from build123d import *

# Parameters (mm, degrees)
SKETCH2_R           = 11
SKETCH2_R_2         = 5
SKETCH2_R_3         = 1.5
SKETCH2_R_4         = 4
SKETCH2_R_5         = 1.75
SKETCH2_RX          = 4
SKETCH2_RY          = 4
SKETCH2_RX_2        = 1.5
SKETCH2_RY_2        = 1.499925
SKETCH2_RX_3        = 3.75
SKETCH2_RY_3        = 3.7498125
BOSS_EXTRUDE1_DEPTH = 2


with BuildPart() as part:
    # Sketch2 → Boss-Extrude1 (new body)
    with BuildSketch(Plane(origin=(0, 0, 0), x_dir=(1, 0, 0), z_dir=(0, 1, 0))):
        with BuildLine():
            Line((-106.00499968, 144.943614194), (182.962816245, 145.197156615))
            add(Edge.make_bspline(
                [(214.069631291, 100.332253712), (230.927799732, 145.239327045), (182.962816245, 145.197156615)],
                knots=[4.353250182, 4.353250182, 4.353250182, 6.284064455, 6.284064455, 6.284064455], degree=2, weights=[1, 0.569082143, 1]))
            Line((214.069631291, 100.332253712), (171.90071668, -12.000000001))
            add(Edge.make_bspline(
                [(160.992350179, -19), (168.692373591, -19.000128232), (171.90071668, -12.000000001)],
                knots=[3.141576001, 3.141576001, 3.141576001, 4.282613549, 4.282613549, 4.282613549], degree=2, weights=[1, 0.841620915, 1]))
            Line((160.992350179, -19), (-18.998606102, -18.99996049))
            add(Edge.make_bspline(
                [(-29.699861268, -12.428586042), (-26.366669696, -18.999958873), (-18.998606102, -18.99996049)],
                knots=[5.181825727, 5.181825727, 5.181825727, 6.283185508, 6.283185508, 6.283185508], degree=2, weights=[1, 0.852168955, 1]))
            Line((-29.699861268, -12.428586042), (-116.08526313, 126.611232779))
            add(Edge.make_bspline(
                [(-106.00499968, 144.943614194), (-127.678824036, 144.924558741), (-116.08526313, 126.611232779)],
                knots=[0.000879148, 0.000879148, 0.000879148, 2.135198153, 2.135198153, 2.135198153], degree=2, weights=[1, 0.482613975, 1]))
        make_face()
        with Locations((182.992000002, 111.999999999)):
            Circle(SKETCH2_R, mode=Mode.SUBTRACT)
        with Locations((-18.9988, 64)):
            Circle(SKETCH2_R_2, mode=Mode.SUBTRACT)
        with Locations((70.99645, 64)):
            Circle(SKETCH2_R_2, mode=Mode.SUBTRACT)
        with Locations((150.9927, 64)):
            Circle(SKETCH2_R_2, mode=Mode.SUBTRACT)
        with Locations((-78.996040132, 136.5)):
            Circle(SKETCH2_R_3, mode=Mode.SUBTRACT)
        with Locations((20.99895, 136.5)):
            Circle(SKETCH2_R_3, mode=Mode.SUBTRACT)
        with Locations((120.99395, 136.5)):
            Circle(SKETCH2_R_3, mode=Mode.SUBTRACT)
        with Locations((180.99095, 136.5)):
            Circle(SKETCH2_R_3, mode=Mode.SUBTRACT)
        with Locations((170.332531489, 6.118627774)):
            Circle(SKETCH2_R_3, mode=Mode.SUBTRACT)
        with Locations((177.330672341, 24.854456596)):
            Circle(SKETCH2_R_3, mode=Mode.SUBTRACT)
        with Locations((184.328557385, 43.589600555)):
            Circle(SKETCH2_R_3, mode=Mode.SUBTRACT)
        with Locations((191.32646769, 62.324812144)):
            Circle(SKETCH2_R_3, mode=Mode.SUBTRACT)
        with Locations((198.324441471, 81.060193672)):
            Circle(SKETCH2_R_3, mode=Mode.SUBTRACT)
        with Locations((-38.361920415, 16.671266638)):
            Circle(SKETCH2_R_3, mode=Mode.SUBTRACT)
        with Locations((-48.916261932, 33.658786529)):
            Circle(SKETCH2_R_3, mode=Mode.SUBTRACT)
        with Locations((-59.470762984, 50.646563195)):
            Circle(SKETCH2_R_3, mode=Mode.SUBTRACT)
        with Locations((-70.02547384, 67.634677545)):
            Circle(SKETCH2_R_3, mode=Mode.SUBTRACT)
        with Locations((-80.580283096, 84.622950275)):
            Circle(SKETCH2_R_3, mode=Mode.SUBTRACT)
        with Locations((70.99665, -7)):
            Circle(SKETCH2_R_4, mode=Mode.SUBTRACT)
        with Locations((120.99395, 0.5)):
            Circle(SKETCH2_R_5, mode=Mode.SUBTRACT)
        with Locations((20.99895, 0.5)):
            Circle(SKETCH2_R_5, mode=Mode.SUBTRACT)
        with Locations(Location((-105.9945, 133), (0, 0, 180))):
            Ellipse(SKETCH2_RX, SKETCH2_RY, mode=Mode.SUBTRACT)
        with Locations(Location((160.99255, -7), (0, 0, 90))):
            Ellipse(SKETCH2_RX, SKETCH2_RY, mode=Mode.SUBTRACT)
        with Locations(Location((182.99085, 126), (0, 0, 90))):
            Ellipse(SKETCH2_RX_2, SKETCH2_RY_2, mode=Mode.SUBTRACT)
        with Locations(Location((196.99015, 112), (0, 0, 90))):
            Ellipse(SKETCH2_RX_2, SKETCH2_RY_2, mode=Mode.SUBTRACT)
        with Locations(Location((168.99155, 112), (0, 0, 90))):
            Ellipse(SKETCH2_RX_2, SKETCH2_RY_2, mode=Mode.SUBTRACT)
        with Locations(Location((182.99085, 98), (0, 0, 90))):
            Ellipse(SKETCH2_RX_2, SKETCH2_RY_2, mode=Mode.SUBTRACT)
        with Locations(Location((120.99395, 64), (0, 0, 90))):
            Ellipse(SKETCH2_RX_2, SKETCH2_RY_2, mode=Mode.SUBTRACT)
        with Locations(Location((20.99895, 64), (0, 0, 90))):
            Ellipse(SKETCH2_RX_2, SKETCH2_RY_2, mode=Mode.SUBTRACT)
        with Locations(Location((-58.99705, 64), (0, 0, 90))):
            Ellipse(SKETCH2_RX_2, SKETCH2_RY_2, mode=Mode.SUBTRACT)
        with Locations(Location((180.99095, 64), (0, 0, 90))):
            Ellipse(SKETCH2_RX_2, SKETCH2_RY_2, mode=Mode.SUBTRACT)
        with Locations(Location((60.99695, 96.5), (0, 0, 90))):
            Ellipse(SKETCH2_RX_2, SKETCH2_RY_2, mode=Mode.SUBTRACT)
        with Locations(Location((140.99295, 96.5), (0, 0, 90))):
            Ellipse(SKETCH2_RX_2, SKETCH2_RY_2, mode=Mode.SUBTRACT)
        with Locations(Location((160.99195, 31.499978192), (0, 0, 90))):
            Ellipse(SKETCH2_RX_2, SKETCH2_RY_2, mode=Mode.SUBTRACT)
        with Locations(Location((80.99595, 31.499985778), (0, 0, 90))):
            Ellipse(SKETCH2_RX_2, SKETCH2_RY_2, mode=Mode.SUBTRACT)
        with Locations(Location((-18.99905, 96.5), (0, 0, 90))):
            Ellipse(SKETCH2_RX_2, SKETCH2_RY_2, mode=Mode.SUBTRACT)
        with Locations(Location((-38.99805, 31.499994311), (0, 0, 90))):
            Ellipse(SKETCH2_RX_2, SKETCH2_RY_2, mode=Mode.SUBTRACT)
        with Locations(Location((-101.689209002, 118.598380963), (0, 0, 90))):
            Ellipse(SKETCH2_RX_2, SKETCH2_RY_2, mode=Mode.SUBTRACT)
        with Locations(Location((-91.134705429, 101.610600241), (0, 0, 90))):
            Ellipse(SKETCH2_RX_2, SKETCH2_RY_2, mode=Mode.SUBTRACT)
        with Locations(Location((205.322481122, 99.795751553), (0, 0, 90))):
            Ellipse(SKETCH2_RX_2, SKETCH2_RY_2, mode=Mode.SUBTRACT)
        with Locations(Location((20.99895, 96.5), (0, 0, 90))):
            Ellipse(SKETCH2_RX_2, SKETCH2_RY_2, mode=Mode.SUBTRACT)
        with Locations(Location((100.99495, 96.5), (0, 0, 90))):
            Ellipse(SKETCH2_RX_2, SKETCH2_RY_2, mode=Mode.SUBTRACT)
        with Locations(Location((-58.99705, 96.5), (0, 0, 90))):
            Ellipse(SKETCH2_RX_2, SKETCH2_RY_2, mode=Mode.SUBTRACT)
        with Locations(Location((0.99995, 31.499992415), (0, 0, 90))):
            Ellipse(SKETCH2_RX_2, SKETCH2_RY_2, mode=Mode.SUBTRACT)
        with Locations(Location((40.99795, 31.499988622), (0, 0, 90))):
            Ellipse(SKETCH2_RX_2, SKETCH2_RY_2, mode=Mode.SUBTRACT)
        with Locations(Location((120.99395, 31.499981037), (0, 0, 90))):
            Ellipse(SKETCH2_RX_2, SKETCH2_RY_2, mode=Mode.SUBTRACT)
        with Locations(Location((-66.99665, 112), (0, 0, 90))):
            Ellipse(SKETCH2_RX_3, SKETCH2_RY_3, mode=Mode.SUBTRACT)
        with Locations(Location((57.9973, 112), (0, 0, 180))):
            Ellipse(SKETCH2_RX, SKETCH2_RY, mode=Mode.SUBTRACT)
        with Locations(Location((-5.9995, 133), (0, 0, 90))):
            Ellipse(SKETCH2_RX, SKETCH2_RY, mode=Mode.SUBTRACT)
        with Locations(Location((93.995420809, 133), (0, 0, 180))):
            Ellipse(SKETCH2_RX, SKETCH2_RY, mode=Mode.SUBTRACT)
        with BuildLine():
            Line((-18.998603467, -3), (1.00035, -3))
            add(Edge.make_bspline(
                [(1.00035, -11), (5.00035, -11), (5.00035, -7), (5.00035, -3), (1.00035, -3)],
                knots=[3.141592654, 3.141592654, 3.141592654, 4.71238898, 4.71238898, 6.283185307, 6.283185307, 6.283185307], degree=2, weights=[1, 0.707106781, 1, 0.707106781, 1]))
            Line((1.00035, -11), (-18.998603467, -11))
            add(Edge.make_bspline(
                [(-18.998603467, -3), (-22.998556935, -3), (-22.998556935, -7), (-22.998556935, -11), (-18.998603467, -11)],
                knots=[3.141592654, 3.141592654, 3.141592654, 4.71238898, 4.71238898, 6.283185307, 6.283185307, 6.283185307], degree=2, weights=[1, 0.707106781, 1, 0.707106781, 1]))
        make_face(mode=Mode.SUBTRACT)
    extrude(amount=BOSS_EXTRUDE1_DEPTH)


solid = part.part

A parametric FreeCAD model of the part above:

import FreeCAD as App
import Part
import Sketcher

doc = App.newDocument("Part")
params = doc.addObject("Spreadsheet::Sheet", "Params")
for row, (alias, value) in enumerate([
    ("sketch1_diameter", "3 mm"),
    ("sketch1_diameter2", "8 mm"),
    ("sketch1_diameter3", "10 mm"),
    ("sketch1_diameter4", "22 mm"),
    ("sketch1_diameter5", "3.5 mm"),
    ("pad1_length", "2 mm"),
], start=1):
    params.set(f"A{row}", alias)
    params.set(f"B{row}", "=" + value)
    params.setAlias(f"B{row}", alias)

body = doc.addObject("PartDesign::Body", "Body")

# Sketch on XZ plane
sketch1 = body.newObject("Sketcher::SketchObject", "Sketch")
sketch1.AttachmentSupport = (doc.getObject("XZ_Plane"), [""])
sketch1.MapMode = "FlatFace"
sketch1.addGeometry([
    Part.LineSegment(App.Vector(182.962816, -145.197157, 0), App.Vector(-106.005, -144.943614, 0)),  # 0
    Part.BSplineCurve([App.Vector(-106.005, -144.943614, 0), App.Vector(-127.678824, -144.924559, 0), App.Vector(-116.085263, -126.611233, 0)], [3, 3], [0.000879148, 2.135198153], False, 2, [1, 0.482613975, 1], False),  # 1
    Part.LineSegment(App.Vector(-116.085263, -126.611233, 0), App.Vector(-29.699861, 12.428586, 0)),  # 2
    Part.BSplineCurve([App.Vector(-29.699861, 12.428586, 0), App.Vector(-26.36667, 18.999959, 0), App.Vector(-18.998606, 18.99996, 0)], [3, 3], [5.181825727, 6.283185508], False, 2, [1, 0.852168955, 1], False),  # 3
    Part.LineSegment(App.Vector(-18.998606, 18.99996, 0), App.Vector(160.99235, 19, 0)),  # 4
    Part.BSplineCurve([App.Vector(160.99235, 19, 0), App.Vector(168.692374, 19.000128, 0), App.Vector(171.900717, 12, 0)], [3, 3], [3.141576001, 4.282613549], False, 2, [1, 0.841620915, 1], False),  # 5
    Part.LineSegment(App.Vector(171.900717, 12, 0), App.Vector(214.069631, -100.332254, 0)),  # 6
    Part.BSplineCurve([App.Vector(214.069631, -100.332254, 0), App.Vector(230.9278, -145.239327, 0), App.Vector(182.962816, -145.197157, 0)], [3, 3], [4.353250182, 6.284064455], False, 2, [1, 0.569082143, 1], False),  # 7
    Part.Circle(App.Vector(170.332531, -6.118628, 0), App.Vector(0, 0, 1), 1.5),  # 8
    Part.Ellipse(App.Vector(160.99255, 3, 0), App.Vector(164.99255, 7, 0), App.Vector(160.99255, 7, 0)),  # 9
    Part.Circle(App.Vector(177.330672, -24.854457, 0), App.Vector(0, 0, 1), 1.5),  # 10
    Part.Circle(App.Vector(120.99395, -0.5, 0), App.Vector(0, 0, 1), 1.75),  # 11
    Part.Circle(App.Vector(70.99665, 7, 0), App.Vector(0, 0, 1), 4),  # 12
    Part.Circle(App.Vector(184.328557, -43.589601, 0), App.Vector(0, 0, 1), 1.5),  # 13
    Part.Ellipse(App.Vector(160.99195, -32.999978, 0), App.Vector(162.491875, -31.499978, 0), App.Vector(160.99195, -31.499978, 0)),  # 14
    Part.Circle(App.Vector(191.326468, -62.324812, 0), App.Vector(0, 0, 1), 1.5),  # 15
    Part.Ellipse(App.Vector(120.99395, -32.999981, 0), App.Vector(122.493875, -31.499981, 0), App.Vector(120.99395, -31.499981, 0)),  # 16
    Part.Ellipse(App.Vector(80.99595, -32.999986, 0), App.Vector(82.495875, -31.499986, 0), App.Vector(80.99595, -31.499986, 0)),  # 17
    Part.Circle(App.Vector(20.99895, -0.5, 0), App.Vector(0, 0, 1), 1.75),  # 18
    Part.LineSegment(App.Vector(-18.998603, 3, 0), App.Vector(1.00035, 3, 0)),  # 19
    Part.BSplineCurve([App.Vector(1.00035, 11, 0), App.Vector(5.00035, 11, 0), App.Vector(5.00035, 7, 0), App.Vector(5.00035, 3, 0), App.Vector(1.00035, 3, 0)], [3, 2, 3], [3.141592654, 4.71238898, 6.283185307], False, 2, [1, 0.707106781, 1, 0.707106781, 1], False),  # 20
    Part.LineSegment(App.Vector(1.00035, 11, 0), App.Vector(-18.998603, 11, 0)),  # 21
    Part.BSplineCurve([App.Vector(-18.998603, 3, 0), App.Vector(-22.998557, 3, 0), App.Vector(-22.998557, 7, 0), App.Vector(-22.998557, 11, 0), App.Vector(-18.998603, 11, 0)], [3, 2, 3], [3.141592654, 4.71238898, 6.283185307], False, 2, [1, 0.707106781, 1, 0.707106781, 1], False),  # 22
    Part.Circle(App.Vector(-38.36192, -16.671267, 0), App.Vector(0, 0, 1), 1.5),  # 23
    Part.Ellipse(App.Vector(40.99795, -32.999989, 0), App.Vector(42.497875, -31.499989, 0), App.Vector(40.99795, -31.499989, 0)),  # 24
    Part.Ellipse(App.Vector(0.99995, -32.999992, 0), App.Vector(2.499875, -31.499992, 0), App.Vector(0.99995, -31.499992, 0)),  # 25
    Part.Ellipse(App.Vector(-38.99805, -32.999994, 0), App.Vector(-37.498125, -31.499994, 0), App.Vector(-38.99805, -31.499994, 0)),  # 26
    Part.Circle(App.Vector(-48.916262, -33.658787, 0), App.Vector(0, 0, 1), 1.5),  # 27
    Part.Circle(App.Vector(-59.470763, -50.646563, 0), App.Vector(0, 0, 1), 1.5),  # 28
    Part.Ellipse(App.Vector(180.99095, -65.5, 0), App.Vector(182.490875, -64, 0), App.Vector(180.99095, -64, 0)),  # 29
    Part.Circle(App.Vector(198.324441, -81.060194, 0), App.Vector(0, 0, 1), 1.5),  # 30
    Part.Circle(App.Vector(150.9927, -64, 0), App.Vector(0, 0, 1), 5),  # 31
    Part.Ellipse(App.Vector(205.322481, -101.295752, 0), App.Vector(206.822406, -99.795752, 0), App.Vector(205.322481, -99.795752, 0)),  # 32
    Part.Ellipse(App.Vector(182.99085, -99.5, 0), App.Vector(184.490775, -98, 0), App.Vector(182.99085, -98, 0)),  # 33
    Part.Ellipse(App.Vector(140.99295, -98, 0), App.Vector(142.492875, -96.5, 0), App.Vector(140.99295, -96.5, 0)),  # 34
    Part.Ellipse(App.Vector(120.99395, -65.5, 0), App.Vector(122.493875, -64, 0), App.Vector(120.99395, -64, 0)),  # 35
    Part.Circle(App.Vector(70.99645, -64, 0), App.Vector(0, 0, 1), 5),  # 36
    Part.Ellipse(App.Vector(100.99495, -98, 0), App.Vector(102.494875, -96.5, 0), App.Vector(100.99495, -96.5, 0)),  # 37
    Part.Ellipse(App.Vector(60.99695, -98, 0), App.Vector(62.496875, -96.5, 0), App.Vector(60.99695, -96.5, 0)),  # 38
    Part.Ellipse(App.Vector(196.99015, -113.5, 0), App.Vector(198.490075, -112, 0), App.Vector(196.99015, -112, 0)),  # 39
    Part.Circle(App.Vector(182.992, -112, 0), App.Vector(0, 0, 1), 11),  # 40
    Part.Ellipse(App.Vector(168.99155, -113.5, 0), App.Vector(170.491475, -112, 0), App.Vector(168.99155, -112, 0)),  # 41
    Part.Ellipse(App.Vector(182.99085, -127.5, 0), App.Vector(184.490775, -126, 0), App.Vector(182.99085, -126, 0)),  # 42
    Part.Circle(App.Vector(180.99095, -136.5, 0), App.Vector(0, 0, 1), 1.5),  # 43
    Part.Ellipse(App.Vector(53.9973, -112, 0), App.Vector(57.9973, -116, 0), App.Vector(57.9973, -112, 0)),  # 44
    Part.Circle(App.Vector(120.99395, -136.5, 0), App.Vector(0, 0, 1), 1.5),  # 45
    Part.Ellipse(App.Vector(89.995421, -133, 0), App.Vector(93.995421, -137, 0), App.Vector(93.995421, -133, 0)),  # 46
    Part.Ellipse(App.Vector(20.99895, -65.5, 0), App.Vector(22.498875, -64, 0), App.Vector(20.99895, -64, 0)),  # 47
    Part.Circle(App.Vector(-18.9988, -64, 0), App.Vector(0, 0, 1), 5),  # 48
    Part.Ellipse(App.Vector(20.99895, -98, 0), App.Vector(22.498875, -96.5, 0), App.Vector(20.99895, -96.5, 0)),  # 49
    Part.Ellipse(App.Vector(-18.99905, -98, 0), App.Vector(-17.499125, -96.5, 0), App.Vector(-18.99905, -96.5, 0)),  # 50
    Part.Ellipse(App.Vector(-58.99705, -65.5, 0), App.Vector(-57.497125, -64, 0), App.Vector(-58.99705, -64, 0)),  # 51
    Part.Circle(App.Vector(-70.025474, -67.634678, 0), App.Vector(0, 0, 1), 1.5),  # 52
    Part.Ellipse(App.Vector(-58.99705, -98, 0), App.Vector(-57.497125, -96.5, 0), App.Vector(-58.99705, -96.5, 0)),  # 53
    Part.Circle(App.Vector(-80.580283, -84.62295, 0), App.Vector(0, 0, 1), 1.5),  # 54
    Part.Circle(App.Vector(20.99895, -136.5, 0), App.Vector(0, 0, 1), 1.5),  # 55
    Part.Ellipse(App.Vector(-5.9995, -137, 0), App.Vector(-1.9995, -133, 0), App.Vector(-5.9995, -133, 0)),  # 56
    Part.Ellipse(App.Vector(-66.99665, -115.75, 0), App.Vector(-63.246838, -112, 0), App.Vector(-66.99665, -112, 0)),  # 57
    Part.Ellipse(App.Vector(-91.134705, -103.1106, 0), App.Vector(-89.63478, -101.6106, 0), App.Vector(-91.134705, -101.6106, 0)),  # 58
    Part.Ellipse(App.Vector(-101.689209, -120.098381, 0), App.Vector(-100.189284, -118.598381, 0), App.Vector(-101.689209, -118.598381, 0)),  # 59
    Part.Circle(App.Vector(-78.99604, -136.5, 0), App.Vector(0, 0, 1), 1.5),  # 60
    Part.Ellipse(App.Vector(-109.9945, -133, 0), App.Vector(-105.9945, -137, 0), App.Vector(-105.9945, -133, 0)),  # 61
], False)
sketch1.addConstraint([
    Sketcher.Constraint("Block", 1),
    Sketcher.Constraint("Block", 3),
    Sketcher.Constraint("Block", 5),
    Sketcher.Constraint("Block", 7),
    Sketcher.Constraint("Block", 9),
    Sketcher.Constraint("Block", 14),
    Sketcher.Constraint("Block", 16),
    Sketcher.Constraint("Block", 17),
    Sketcher.Constraint("Block", 20),
    Sketcher.Constraint("Block", 22),
    Sketcher.Constraint("Block", 24),
    Sketcher.Constraint("Block", 25),
    Sketcher.Constraint("Block", 26),
    Sketcher.Constraint("Block", 29),
    Sketcher.Constraint("Block", 32),
    Sketcher.Constraint("Block", 33),
    Sketcher.Constraint("Block", 34),
    Sketcher.Constraint("Block", 35),
    Sketcher.Constraint("Block", 37),
    Sketcher.Constraint("Block", 38),
    Sketcher.Constraint("Block", 39),
    Sketcher.Constraint("Block", 41),
    Sketcher.Constraint("Block", 42),
    Sketcher.Constraint("Block", 44),
    Sketcher.Constraint("Block", 46),
    Sketcher.Constraint("Block", 47),
    Sketcher.Constraint("Block", 49),
    Sketcher.Constraint("Block", 50),
    Sketcher.Constraint("Block", 51),
    Sketcher.Constraint("Block", 53),
    Sketcher.Constraint("Block", 56),
    Sketcher.Constraint("Block", 57),
    Sketcher.Constraint("Block", 58),
    Sketcher.Constraint("Block", 59),
    Sketcher.Constraint("Block", 61),
    Sketcher.Constraint("Coincident", 0, 2, 1, 1),
    Sketcher.Constraint("Coincident", 1, 2, 2, 1),
    Sketcher.Constraint("Coincident", 2, 2, 3, 1),
    Sketcher.Constraint("Coincident", 3, 2, 4, 1),
    Sketcher.Constraint("Coincident", 4, 2, 5, 1),
    Sketcher.Constraint("Coincident", 5, 2, 6, 1),
    Sketcher.Constraint("Coincident", 6, 2, 7, 1),
    Sketcher.Constraint("Coincident", 7, 2, 0, 1),
    Sketcher.Constraint("Coincident", 19, 2, 20, 2),
    Sketcher.Constraint("Coincident", 20, 1, 21, 1),
    Sketcher.Constraint("Coincident", 21, 2, 22, 2),
    Sketcher.Constraint("Coincident", 22, 1, 19, 1),
    Sketcher.Constraint("Equal", 8, 10),
    Sketcher.Constraint("Equal", 10, 13),
    Sketcher.Constraint("Equal", 13, 15),
    Sketcher.Constraint("Equal", 11, 18),
    Sketcher.Constraint("Equal", 15, 23),
    Sketcher.Constraint("Equal", 23, 27),
    Sketcher.Constraint("Equal", 27, 28),
    Sketcher.Constraint("Equal", 28, 30),
    Sketcher.Constraint("Equal", 31, 36),
    Sketcher.Constraint("Equal", 30, 43),
    Sketcher.Constraint("Equal", 43, 45),
    Sketcher.Constraint("Equal", 36, 48),
    Sketcher.Constraint("Equal", 45, 52),
    Sketcher.Constraint("Equal", 52, 54),
    Sketcher.Constraint("Equal", 54, 55),
    Sketcher.Constraint("Equal", 55, 60),
    Sketcher.Constraint("Horizontal", 11, 3, 18, 3),
    Sketcher.Constraint("Horizontal", 31, 3, 36, 3),
    Sketcher.Constraint("Horizontal", 43, 3, 45, 3),
    Sketcher.Constraint("Horizontal", 36, 3, 48, 3),
    Sketcher.Constraint("Horizontal", 45, 3, 55, 3),
    Sketcher.Constraint("Horizontal", 55, 3, 60, 3),
    Sketcher.Constraint("Vertical", 11, 3, 45, 3),
    Sketcher.Constraint("Vertical", 18, 3, 55, 3),
    Sketcher.Constraint("Diameter", 8, 3.0),
    Sketcher.Constraint("Diameter", 12, 8.0),
    Sketcher.Constraint("Diameter", 31, 10.0),
    Sketcher.Constraint("Diameter", 40, 22.0),
    Sketcher.Constraint("Diameter", 11, 3.5),
    Sketcher.Constraint("DistanceY", -1, 1, 12, 3, 7.0),
    Sketcher.Constraint("DistanceY", 31, 3, -1, 1, 64.0),
    Sketcher.Constraint("DistanceY", 40, 3, -1, 1, 112.0),
    Sketcher.Constraint("DistanceY", 11, 3, -1, 1, 0.5),
    Sketcher.Constraint("DistanceY", 43, 3, -1, 1, 136.5),
    Sketcher.Constraint("DistanceX", -1, 1, 40, 3, 182.992),
    Sketcher.Constraint("DistanceX", 18, 3, 11, 3, 99.995),
    Sketcher.Constraint("DistanceX", 45, 3, 43, 3, 59.997),
    Sketcher.Constraint("DistanceY", 13, 3, -1, 1, 43.589601),
    Sketcher.Constraint("DistanceX", -1, 1, 31, 3, 150.9927),
    Sketcher.Constraint("DistanceX", 48, 3, -1, 1, 18.9988),
    Sketcher.Constraint("DistanceX", 12, 3, 11, 3, 49.9973),
    Sketcher.Constraint("DistanceX", 28, 3, 27, 3, 10.554501),
    Sketcher.Constraint("DistanceX", 36, 3, 12, 3, 0.0002),
    Sketcher.Constraint("DistanceX", 27, 3, 2, 2, 19.216401),
    Sketcher.Constraint("DistanceX", 11, 3, 4, 2, 39.9984),
    Sketcher.Constraint("DistanceX", -1, 1, 8, 3, 170.332531),
    Sketcher.Constraint("DistanceX", 23, 3, -1, 1, 38.36192),
    Sketcher.Constraint("DistanceX", -1, 1, 30, 3, 198.324441),
    Sketcher.Constraint("DistanceY", 54, 3, -1, 1, 84.62295),
    Sketcher.Constraint("DistanceX", 60, 3, -1, 1, 78.99604),
    Sketcher.Constraint("DistanceX", 8, 3, 10, 3, 6.998141),
    Sketcher.Constraint("DistanceY", 10, 3, 8, 3, 18.735829),
    Sketcher.Constraint("DistanceX", 13, 3, 15, 3, 6.99791),
    Sketcher.Constraint("DistanceY", 15, 3, 13, 3, 18.735212),
    Sketcher.Constraint("DistanceY", 23, 3, 8, 3, 10.552639),
    Sketcher.Constraint("DistanceY", 27, 3, 23, 3, 16.98752),
    Sketcher.Constraint("DistanceY", 30, 3, 15, 3, 18.735382),
    Sketcher.Constraint("DistanceX", 52, 3, 28, 3, 10.554711),
    Sketcher.Constraint("DistanceY", 52, 3, 27, 3, 33.975891),
    Sketcher.Constraint("DistanceX", 54, 3, 52, 3, 10.554809),
    Sketcher.Constraint("DistanceY", 0, 2, 28, 3, 94.297051),
    Sketcher.Constraint("DistanceY", 8, 3, -1, 1, 6.118628),
    Sketcher.Constraint("DistanceX", -1, 1, 13, 3, 184.328557),
])
sketch1.setExpression("Constraints[71]", "Params.sketch1_diameter")
sketch1.setExpression("Constraints[72]", "Params.sketch1_diameter2")
sketch1.setExpression("Constraints[73]", "Params.sketch1_diameter3")
sketch1.setExpression("Constraints[74]", "Params.sketch1_diameter4")
sketch1.setExpression("Constraints[75]", "Params.sketch1_diameter5")
pad1 = body.newObject("PartDesign::Pad", "Pad")
pad1.Profile = sketch1
pad1.setExpression("Length", "Params.pad1_length")
pad1.Reversed = True

doc.recompute()
